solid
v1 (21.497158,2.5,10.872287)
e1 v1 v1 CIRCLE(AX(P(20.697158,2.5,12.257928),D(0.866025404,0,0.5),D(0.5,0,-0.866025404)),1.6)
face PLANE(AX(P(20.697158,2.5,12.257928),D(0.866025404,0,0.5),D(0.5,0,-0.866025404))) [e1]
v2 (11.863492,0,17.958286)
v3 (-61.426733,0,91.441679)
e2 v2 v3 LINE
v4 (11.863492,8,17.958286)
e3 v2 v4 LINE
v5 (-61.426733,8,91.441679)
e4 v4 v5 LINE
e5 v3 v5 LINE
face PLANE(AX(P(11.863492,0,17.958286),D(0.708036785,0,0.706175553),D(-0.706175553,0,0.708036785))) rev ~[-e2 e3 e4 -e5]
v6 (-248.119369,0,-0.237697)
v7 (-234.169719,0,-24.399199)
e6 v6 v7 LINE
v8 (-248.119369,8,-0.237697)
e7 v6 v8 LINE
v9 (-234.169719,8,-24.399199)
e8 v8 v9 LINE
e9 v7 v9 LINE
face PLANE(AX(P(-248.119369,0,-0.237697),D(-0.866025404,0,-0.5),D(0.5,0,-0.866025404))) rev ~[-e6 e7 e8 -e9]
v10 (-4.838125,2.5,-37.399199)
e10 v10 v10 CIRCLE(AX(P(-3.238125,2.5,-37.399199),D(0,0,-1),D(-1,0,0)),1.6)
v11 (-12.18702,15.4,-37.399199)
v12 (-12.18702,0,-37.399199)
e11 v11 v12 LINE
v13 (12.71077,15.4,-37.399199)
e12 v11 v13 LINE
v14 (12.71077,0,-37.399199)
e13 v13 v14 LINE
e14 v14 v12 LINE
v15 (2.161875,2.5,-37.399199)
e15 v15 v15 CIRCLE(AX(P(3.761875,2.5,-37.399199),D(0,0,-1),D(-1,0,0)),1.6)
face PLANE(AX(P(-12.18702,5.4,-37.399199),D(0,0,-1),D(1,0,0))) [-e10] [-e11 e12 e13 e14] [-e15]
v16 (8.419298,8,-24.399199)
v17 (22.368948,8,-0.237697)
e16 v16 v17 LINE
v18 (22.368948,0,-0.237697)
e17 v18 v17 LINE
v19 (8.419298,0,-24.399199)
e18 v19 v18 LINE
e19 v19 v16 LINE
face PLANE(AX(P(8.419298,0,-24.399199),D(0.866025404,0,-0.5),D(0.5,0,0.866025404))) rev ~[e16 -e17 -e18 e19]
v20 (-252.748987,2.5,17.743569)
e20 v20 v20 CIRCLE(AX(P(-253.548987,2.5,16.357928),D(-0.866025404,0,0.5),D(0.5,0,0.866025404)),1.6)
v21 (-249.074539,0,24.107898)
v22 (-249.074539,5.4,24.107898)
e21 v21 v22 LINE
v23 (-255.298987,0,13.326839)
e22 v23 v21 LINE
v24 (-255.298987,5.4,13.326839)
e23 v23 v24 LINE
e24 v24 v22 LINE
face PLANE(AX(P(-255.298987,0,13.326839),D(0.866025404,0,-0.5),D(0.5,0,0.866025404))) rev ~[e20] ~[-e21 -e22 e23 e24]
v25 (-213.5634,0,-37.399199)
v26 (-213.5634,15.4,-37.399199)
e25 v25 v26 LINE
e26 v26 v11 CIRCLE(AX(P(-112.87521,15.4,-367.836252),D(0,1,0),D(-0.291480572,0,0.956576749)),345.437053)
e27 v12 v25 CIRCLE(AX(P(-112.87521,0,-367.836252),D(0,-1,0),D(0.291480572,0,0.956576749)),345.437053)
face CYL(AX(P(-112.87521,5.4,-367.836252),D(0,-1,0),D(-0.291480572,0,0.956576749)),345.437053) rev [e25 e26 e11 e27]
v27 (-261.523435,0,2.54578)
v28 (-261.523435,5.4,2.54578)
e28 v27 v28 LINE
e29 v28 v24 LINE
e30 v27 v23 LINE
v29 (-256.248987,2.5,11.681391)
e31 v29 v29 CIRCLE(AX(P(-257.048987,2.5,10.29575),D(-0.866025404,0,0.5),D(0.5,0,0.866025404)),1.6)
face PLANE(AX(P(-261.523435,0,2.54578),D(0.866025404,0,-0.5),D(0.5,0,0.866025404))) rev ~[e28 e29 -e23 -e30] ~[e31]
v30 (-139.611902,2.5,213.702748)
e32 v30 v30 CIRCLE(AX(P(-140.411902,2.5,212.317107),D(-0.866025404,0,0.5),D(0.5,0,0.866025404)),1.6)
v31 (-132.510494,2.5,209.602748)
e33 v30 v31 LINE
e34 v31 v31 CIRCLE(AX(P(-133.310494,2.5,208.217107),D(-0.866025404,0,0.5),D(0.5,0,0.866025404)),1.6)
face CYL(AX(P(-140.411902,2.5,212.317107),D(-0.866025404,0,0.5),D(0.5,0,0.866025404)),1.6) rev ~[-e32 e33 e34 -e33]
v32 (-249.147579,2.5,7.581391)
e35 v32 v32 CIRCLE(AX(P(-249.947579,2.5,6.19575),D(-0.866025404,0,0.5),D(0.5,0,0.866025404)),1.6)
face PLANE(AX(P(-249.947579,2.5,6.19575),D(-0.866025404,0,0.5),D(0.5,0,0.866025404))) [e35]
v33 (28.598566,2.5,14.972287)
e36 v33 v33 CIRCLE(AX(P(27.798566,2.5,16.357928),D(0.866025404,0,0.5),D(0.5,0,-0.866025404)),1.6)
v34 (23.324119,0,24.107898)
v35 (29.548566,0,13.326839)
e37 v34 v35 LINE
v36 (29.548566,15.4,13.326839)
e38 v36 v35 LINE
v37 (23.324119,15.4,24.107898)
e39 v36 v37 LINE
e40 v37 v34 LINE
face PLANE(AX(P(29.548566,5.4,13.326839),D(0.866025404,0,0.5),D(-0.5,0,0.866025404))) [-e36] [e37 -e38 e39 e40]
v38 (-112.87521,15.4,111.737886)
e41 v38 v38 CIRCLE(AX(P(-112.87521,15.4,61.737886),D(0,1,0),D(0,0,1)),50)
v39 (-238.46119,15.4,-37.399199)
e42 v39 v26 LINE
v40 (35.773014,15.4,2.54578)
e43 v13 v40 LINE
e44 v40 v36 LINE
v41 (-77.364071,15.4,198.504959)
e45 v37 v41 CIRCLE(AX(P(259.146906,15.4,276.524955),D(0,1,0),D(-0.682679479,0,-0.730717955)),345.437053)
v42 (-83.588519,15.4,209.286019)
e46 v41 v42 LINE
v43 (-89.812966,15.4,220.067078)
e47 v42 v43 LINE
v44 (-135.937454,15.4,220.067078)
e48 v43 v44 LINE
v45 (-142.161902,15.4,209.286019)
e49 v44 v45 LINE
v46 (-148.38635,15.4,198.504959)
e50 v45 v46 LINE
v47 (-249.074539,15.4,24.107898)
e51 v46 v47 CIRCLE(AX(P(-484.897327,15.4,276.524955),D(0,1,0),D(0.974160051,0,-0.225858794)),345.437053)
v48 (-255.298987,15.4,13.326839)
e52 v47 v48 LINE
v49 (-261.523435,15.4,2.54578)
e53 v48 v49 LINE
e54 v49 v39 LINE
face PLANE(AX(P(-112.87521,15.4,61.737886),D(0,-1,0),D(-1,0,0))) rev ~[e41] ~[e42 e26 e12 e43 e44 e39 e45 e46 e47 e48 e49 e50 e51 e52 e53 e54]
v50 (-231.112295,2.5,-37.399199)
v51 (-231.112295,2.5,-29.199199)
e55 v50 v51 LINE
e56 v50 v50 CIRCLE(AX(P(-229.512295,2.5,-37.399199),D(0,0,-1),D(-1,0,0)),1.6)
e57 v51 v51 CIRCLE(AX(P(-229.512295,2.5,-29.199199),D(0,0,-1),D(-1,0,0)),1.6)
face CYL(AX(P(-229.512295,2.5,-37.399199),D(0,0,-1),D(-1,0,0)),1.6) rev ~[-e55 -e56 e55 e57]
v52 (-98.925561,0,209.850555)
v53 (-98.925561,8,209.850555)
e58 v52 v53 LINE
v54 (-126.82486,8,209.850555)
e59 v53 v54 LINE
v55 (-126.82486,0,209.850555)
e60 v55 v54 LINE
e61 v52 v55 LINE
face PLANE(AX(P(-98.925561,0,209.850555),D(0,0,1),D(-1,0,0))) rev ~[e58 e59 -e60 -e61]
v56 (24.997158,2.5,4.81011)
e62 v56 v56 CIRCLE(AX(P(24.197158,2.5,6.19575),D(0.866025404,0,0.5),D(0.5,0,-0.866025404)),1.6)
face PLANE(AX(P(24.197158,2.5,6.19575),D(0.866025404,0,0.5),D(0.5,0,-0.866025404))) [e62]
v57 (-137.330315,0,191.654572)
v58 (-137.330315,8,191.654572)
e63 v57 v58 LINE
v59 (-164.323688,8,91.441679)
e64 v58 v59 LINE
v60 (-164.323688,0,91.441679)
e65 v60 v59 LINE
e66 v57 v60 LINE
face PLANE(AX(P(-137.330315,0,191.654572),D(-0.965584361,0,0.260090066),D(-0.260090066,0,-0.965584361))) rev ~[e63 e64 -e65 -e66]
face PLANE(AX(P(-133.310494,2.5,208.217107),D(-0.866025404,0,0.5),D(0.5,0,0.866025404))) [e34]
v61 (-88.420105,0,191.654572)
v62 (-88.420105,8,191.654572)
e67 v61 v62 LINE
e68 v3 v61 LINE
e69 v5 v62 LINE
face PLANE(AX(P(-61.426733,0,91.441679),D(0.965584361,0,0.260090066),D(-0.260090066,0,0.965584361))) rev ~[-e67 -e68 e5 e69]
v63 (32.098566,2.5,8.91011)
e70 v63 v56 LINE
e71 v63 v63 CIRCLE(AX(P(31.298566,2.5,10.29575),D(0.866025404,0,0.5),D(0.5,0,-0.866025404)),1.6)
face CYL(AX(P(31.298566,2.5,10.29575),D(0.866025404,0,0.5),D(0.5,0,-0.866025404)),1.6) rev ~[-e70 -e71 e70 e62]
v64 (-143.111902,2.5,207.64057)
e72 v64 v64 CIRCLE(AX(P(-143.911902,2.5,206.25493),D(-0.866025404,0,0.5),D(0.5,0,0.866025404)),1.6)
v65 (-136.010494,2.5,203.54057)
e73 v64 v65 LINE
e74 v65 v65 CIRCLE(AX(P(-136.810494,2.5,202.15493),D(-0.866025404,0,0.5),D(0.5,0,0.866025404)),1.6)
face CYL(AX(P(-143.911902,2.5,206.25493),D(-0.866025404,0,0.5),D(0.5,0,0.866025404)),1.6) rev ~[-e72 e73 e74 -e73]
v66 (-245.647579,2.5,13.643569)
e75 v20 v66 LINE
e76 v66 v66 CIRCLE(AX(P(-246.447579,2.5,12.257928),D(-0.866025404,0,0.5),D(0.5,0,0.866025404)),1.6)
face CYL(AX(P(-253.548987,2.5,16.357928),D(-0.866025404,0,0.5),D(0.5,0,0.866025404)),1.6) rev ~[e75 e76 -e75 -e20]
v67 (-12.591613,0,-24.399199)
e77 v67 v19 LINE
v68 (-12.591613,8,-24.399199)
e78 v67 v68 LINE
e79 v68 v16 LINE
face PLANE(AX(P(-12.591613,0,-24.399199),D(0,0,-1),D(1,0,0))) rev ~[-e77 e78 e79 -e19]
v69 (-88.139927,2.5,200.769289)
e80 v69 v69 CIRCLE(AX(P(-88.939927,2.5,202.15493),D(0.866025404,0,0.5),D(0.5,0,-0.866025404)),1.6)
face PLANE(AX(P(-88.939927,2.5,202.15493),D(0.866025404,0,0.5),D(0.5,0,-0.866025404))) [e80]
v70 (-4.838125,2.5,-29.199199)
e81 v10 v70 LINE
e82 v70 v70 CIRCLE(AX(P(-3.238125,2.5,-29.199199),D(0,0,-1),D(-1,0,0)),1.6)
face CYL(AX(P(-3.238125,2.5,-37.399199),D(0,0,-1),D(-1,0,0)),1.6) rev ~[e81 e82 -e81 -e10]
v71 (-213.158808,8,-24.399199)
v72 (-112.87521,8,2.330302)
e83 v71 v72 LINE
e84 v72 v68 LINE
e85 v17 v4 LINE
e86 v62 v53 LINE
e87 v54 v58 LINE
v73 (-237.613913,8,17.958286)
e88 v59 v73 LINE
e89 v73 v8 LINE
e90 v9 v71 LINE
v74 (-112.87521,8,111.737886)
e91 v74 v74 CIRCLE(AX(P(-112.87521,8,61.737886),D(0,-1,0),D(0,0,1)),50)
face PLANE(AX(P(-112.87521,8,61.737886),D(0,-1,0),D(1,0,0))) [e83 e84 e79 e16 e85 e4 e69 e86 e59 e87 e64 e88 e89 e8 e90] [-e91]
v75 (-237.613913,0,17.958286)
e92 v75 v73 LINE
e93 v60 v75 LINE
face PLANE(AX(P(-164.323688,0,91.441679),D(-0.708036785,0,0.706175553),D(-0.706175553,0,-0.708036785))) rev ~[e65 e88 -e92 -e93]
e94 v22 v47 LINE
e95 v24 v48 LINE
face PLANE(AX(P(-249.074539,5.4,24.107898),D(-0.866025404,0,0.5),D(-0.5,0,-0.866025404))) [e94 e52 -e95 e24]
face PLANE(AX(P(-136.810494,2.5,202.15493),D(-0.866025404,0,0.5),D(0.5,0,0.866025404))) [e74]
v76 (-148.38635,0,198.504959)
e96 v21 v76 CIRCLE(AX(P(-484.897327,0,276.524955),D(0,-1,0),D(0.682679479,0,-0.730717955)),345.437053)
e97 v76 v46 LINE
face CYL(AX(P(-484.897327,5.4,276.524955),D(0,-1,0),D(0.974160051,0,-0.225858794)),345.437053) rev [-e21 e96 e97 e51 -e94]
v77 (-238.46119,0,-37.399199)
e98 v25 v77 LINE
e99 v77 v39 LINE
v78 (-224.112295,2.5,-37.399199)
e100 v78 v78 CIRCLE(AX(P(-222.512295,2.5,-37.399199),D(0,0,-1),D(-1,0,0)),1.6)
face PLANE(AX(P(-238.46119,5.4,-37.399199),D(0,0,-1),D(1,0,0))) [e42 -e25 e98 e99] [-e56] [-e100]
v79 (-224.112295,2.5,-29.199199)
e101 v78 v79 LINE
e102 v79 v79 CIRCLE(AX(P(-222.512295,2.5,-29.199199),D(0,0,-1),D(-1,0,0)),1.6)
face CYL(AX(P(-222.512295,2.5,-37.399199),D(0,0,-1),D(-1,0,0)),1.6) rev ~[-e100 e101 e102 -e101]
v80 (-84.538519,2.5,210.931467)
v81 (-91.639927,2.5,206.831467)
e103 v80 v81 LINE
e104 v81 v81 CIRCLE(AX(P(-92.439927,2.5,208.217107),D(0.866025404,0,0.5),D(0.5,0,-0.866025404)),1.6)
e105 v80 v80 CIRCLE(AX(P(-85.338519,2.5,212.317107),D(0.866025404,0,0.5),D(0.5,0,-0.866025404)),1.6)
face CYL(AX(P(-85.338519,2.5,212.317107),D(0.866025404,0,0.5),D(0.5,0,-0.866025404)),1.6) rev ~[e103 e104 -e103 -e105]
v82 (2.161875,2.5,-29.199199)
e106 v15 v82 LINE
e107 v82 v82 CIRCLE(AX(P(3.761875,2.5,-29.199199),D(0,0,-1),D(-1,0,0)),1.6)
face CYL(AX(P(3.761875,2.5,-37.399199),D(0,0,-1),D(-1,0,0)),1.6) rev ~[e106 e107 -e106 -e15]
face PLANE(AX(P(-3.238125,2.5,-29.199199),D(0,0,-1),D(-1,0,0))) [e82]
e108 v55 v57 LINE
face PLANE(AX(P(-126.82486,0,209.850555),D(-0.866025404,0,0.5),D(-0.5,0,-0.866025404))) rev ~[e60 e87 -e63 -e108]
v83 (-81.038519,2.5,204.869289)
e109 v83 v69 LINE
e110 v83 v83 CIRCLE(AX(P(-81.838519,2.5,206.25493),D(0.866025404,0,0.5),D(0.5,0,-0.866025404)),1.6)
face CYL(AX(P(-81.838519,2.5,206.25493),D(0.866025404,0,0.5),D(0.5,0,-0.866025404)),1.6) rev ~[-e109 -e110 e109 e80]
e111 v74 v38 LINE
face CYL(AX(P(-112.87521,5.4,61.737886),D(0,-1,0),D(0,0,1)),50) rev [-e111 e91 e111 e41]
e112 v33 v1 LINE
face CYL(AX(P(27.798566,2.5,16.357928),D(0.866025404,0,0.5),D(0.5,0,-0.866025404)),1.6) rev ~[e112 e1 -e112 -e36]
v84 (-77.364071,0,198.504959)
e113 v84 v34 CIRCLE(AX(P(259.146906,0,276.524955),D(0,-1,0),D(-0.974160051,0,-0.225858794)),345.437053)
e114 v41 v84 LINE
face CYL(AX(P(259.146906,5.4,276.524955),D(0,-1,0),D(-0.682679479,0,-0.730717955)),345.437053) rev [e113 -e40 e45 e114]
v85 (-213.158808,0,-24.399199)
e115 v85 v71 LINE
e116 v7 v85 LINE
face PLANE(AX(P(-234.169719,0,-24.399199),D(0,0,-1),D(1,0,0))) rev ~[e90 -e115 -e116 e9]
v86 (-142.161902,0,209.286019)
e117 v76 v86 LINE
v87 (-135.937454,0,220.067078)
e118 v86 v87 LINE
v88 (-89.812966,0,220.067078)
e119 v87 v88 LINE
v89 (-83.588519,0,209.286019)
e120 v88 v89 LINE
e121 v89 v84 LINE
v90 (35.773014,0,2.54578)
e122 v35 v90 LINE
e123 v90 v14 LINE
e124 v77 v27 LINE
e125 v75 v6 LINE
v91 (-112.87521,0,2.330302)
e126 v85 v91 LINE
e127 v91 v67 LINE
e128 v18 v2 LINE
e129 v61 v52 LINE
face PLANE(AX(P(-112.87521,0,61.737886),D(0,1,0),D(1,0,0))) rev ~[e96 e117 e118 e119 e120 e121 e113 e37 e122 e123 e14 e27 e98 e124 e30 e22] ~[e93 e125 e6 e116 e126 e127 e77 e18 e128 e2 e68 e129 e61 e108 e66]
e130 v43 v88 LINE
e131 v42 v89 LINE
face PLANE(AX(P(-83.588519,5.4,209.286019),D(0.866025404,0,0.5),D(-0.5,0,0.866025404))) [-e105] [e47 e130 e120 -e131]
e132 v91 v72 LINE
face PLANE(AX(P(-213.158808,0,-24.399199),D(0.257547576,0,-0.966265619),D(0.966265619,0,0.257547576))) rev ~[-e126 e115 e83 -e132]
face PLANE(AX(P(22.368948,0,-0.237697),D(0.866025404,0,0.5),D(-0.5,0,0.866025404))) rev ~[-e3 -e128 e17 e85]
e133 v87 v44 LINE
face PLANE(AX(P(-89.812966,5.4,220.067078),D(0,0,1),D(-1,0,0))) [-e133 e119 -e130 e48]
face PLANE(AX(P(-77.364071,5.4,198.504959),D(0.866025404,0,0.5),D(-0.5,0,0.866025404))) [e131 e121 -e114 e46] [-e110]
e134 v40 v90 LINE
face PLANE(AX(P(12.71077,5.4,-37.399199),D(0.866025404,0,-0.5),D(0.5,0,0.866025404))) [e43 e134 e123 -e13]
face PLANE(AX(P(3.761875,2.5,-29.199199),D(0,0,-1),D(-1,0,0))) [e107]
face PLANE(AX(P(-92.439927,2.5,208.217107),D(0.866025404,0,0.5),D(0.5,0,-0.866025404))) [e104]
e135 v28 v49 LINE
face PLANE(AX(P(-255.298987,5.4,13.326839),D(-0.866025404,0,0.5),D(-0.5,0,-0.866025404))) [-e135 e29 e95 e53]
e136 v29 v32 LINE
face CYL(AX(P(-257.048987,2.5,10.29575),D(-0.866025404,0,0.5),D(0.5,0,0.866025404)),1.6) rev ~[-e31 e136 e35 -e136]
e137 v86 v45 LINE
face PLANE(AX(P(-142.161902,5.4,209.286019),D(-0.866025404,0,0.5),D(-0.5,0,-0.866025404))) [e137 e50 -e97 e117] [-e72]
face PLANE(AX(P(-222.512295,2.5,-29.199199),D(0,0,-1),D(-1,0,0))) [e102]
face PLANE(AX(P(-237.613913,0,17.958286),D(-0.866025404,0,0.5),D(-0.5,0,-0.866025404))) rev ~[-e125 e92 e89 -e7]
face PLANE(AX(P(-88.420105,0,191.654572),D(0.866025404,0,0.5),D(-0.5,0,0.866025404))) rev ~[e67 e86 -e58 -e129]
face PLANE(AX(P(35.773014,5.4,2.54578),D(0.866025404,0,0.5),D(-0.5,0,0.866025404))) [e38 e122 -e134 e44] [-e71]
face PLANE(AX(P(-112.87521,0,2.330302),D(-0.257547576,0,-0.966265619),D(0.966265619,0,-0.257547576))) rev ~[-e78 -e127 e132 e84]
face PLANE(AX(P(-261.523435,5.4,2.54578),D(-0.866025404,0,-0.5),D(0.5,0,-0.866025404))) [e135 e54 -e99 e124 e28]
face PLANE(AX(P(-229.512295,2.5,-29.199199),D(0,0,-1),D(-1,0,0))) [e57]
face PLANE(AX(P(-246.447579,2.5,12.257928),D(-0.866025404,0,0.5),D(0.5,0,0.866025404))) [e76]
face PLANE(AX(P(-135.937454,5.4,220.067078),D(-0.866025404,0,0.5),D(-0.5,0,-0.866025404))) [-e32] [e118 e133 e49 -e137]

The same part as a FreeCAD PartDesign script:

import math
import FreeCAD as App
import Part
import Sketcher
Q = App.Units.Quantity

doc = App.newDocument("Part")
body = doc.addObject("PartDesign::Body", "Body")

sketch1 = doc.addObject("Sketcher::SketchObject", "Sketch")
body.addObject(sketch1)
sketch1.AttachmentSupport = (doc.XZ_Plane, [""])
sketch1.MapMode = "FlatFace"
sketch1.addGeometry([
    Part.LineSegment(App.Vector(-213.5634, -37.399199, 0), App.Vector(-238.46119, -37.399199, 0)),
    Part.LineSegment(App.Vector(-238.46119, -37.399199, 0), App.Vector(-261.523435, 2.54578, 0)),
    Part.LineSegment(App.Vector(-261.523435, 2.54578, 0), App.Vector(-255.298987, 13.326839, 0)),
    Part.LineSegment(App.Vector(-255.298987, 13.326839, 0), App.Vector(-249.074539, 24.107898, 0)),
    Part.ArcOfCircle(Part.Circle(App.Vector(-484.897327, 276.524955, 0), App.Vector(0, 0, 1), 345.437053), math.radians(-46.946617), math.radians(-13.053383)),
    Part.LineSegment(App.Vector(-148.38635, 198.504959, 0), App.Vector(-142.161902, 209.286019, 0)),
    Part.LineSegment(App.Vector(-142.161902, 209.286019, 0), App.Vector(-135.937454, 220.067078, 0)),
    Part.LineSegment(App.Vector(-135.937454, 220.067078, 0), App.Vector(-89.812966, 220.067078, 0)),
    Part.LineSegment(App.Vector(-89.812966, 220.067078, 0), App.Vector(-83.588519, 209.286019, 0)),
    Part.LineSegment(App.Vector(-83.588519, 209.286019, 0), App.Vector(-77.364071, 198.504959, 0)),
    Part.ArcOfCircle(Part.Circle(App.Vector(259.146906, 276.524955, 0), App.Vector(0, 0, 1), 345.437053), math.radians(-166.946617), math.radians(-133.053383)),
    Part.LineSegment(App.Vector(23.324119, 24.107898, 0), App.Vector(29.548566, 13.326839, 0)),
    Part.LineSegment(App.Vector(29.548566, 13.326839, 0), App.Vector(35.773014, 2.54578, 0)),
    Part.LineSegment(App.Vector(35.773014, 2.54578, 0), App.Vector(12.71077, -37.399199, 0)),
    Part.LineSegment(App.Vector(12.71077, -37.399199, 0), App.Vector(-12.18702, -37.399199, 0)),
    Part.ArcOfCircle(Part.Circle(App.Vector(-112.87521, -367.836252, 0), App.Vector(0, 0, 1), 345.437053), math.radians(73.053383), math.radians(106.946617)),
], False)
sketch1.addConstraint([
    Sketcher.Constraint("Coincident", 0, 2, 1, 1),
    Sketcher.Constraint("Coincident", 1, 2, 2, 1),
    Sketcher.Constraint("Coincident", 2, 2, 3, 1),
    Sketcher.Constraint("Coincident", 3, 2, 4, 1),
    Sketcher.Constraint("Coincident", 4, 2, 5, 1),
    Sketcher.Constraint("Coincident", 5, 2, 6, 1),
    Sketcher.Constraint("Coincident", 6, 2, 7, 1),
    Sketcher.Constraint("Coincident", 7, 2, 8, 1),
    Sketcher.Constraint("Coincident", 8, 2, 9, 1),
    Sketcher.Constraint("Coincident", 9, 2, 10, 1),
    Sketcher.Constraint("Coincident", 10, 2, 11, 1),
    Sketcher.Constraint("Coincident", 11, 2, 12, 1),
    Sketcher.Constraint("Coincident", 12, 2, 13, 1),
    Sketcher.Constraint("Coincident", 13, 2, 14, 1),
    Sketcher.Constraint("Coincident", 14, 2, 15, 1),
    Sketcher.Constraint("Coincident", 15, 2, 0, 1),
    Sketcher.Constraint("Horizontal", 0),
    Sketcher.Constraint("Horizontal", 7),
    Sketcher.Constraint("Horizontal", 14),
    Sketcher.Constraint("Equal", 4, 10),
    Sketcher.Constraint("Equal", 10, 15),
    Sketcher.Constraint("Parallel", 2, 3),
    Sketcher.Constraint("Parallel", 3, 5),
    Sketcher.Constraint("Parallel", 5, 6),
    Sketcher.Constraint("Parallel", 1, 8),
    Sketcher.Constraint("Parallel", 8, 9),
    Sketcher.Constraint("Parallel", 9, 11),
    Sketcher.Constraint("Parallel", 11, 12),
    Sketcher.Constraint("Parallel", 6, 13),
    Sketcher.Constraint("Horizontal", 4, 3, 10, 3),
    Sketcher.Constraint("Horizontal", 5, 2, 8, 2),
    Sketcher.Constraint("Horizontal", 4, 2, 9, 2),
    Sketcher.Constraint("Horizontal", 3, 2, 10, 2),
    Sketcher.Constraint("Horizontal", 2, 2, 11, 2),
    Sketcher.Constraint("Horizontal", 1, 2, 12, 2),
    Sketcher.Constraint("Horizontal", 0, 2, 13, 2),
    Sketcher.Constraint("Equal", 0, 14),
    Sketcher.Constraint("Equal", 2, 3),
    Sketcher.Constraint("Equal", 3, 5),
    Sketcher.Constraint("Equal", 5, 6),
    Sketcher.Constraint("Equal", 6, 8),
    Sketcher.Constraint("Angle", 1, Q("120 deg")),
    Sketcher.Constraint("Radius", 4, Q("345.437053 mm")),
    Sketcher.Constraint("DistanceX", 0, 2, 0, 1, Q("24.89779 mm")),
    Sketcher.Constraint("DistanceX", 7, 1, 7, 2, Q("46.124488 mm")),
    Sketcher.Constraint("DistanceY", 0, 2, -1, 1, Q("37.399199 mm")),
    Sketcher.Constraint("DistanceY", -1, 1, 3, 2, Q("24.107898 mm")),
    Sketcher.Constraint("DistanceX", 5, 2, -1, 1, Q("142.161902 mm")),
    Sketcher.Constraint("DistanceY", 1, 2, 6, 2, Q("217.521298 mm")),
    Sketcher.Constraint("Distance", 1, Q("46.124488 mm")),
    Sketcher.Constraint("DistanceY", 15, 3, -1, 1, Q("367.836252 mm")),
])
pad1 = doc.addObject("PartDesign::Pad", "Pad")
body.addObject(pad1)
pad1.Profile = sketch1
pad1.Length = 5.4
pad1.Reversed = True

sketch2 = doc.addObject("Sketcher::SketchObject", "Sketch001")
body.addObject(sketch2)
sketch2.AttachmentSupport = (doc.XZ_Plane, [""])
sketch2.MapMode = "FlatFace"
sketch2.AttachmentOffset = App.Placement(App.Vector(0, 0, -5.4), App.Rotation())
sketch2.addGeometry(Part.Circle(App.Vector(-112.87521, 61.737886, 0), App.Vector(0, 0, 1), 50), False)
sketch2.addConstraint([
    Sketcher.Constraint("Diameter", 0, Q("100 mm")),
    Sketcher.Constraint("DistanceX", 0, 3, -1, 1, Q("112.87521 mm")),
    Sketcher.Constraint("DistanceY", -1, 1, 0, 3, Q("61.737886 mm")),
])
pocket1 = doc.addObject("PartDesign::Pocket", "Pocket")
body.addObject(pocket1)
pocket1.Profile = sketch2
pocket1.Type = "ThroughAll"
pocket1.Reversed = True

sketch3 = doc.addObject("Sketcher::SketchObject", "Sketch002")
body.addObject(sketch3)
sketch3.Placement = App.Placement(App.Vector(-197.244931, 0, 113.879414), App.Rotation(App.Vector(0.5, 0, 0.866025404), App.Vector(0, 1, 0), App.Vector(-0.866025404, 0, 0.5), "ZXY"))
sketch3.addGeometry([
    Part.Circle(App.Vector(106.666058, 2.5, 0), App.Vector(0, 0, 1), 1.6),
    Part.Circle(App.Vector(113.666058, 2.5, 0), App.Vector(0, 0, 1), 1.6),
], False)
sketch3.addConstraint([
    Sketcher.Constraint("Equal", 0, 1),
    Sketcher.Constraint("Horizontal", 0, 3, 1, 3),
    Sketcher.Constraint("Diameter", 0, Q("3.2 mm")),
    Sketcher.Constraint("DistanceX", 0, 3, 1, 3, Q("7 mm")),
    Sketcher.Constraint("DistanceY", -1, 1, 0, 3, Q("2.5 mm")),
    Sketcher.Constraint("DistanceX", -1, 1, 0, 3, Q("106.666058 mm")),
])
pocket2 = doc.addObject("PartDesign::Pocket", "Pocket001")
body.addObject(pocket2)
pocket2.Profile = sketch3
pocket2.Length = 8.2

sketch4 = doc.addObject("Sketcher::SketchObject", "Sketch003")
body.addObject(sketch4)
sketch4.Placement = App.Placement(App.Vector(-197.244931, 0, 113.879414), App.Rotation(App.Vector(0.5, 0, 0.866025404), App.Vector(0, 1, 0), App.Vector(-0.866025404, 0, 0.5), "ZXY"))
sketch4.addGeometry([
    Part.Circle(App.Vector(-119.608112, 2.5, 0), App.Vector(0, 0, 1), 1.6),
    Part.Circle(App.Vector(-112.608112, 2.5, 0), App.Vector(0, 0, 1), 1.6),
], False)
sketch4.addConstraint([
    Sketcher.Constraint("Equal", 0, 1),
    Sketcher.Constraint("Horizontal", 0, 3, 1, 3),
    Sketcher.Constraint("Diameter", 0, Q("3.2 mm")),
    Sketcher.Constraint("DistanceX", 0, 3, 1, 3, Q("7 mm")),
    Sketcher.Constraint("DistanceY", -1, 1, 0, 3, Q("2.5 mm")),
    Sketcher.Constraint("DistanceX", 0, 3, -1, 1, Q("119.608112 mm")),
])
pocket3 = doc.addObject("PartDesign::Pocket", "Pocket002")
body.addObject(pocket3)
pocket3.Profile = sketch4
pocket3.Length = 8.2

sketch5 = doc.addObject("Sketcher::SketchObject", "Sketch004")
body.addObject(sketch5)
sketch5.AttachmentSupport = (doc.XY_Plane, [""])
sketch5.MapMode = "FlatFace"
sketch5.AttachmentOffset = App.Placement(App.Vector(0, 0, -37.399199), App.Rotation())
sketch5.addGeometry([
    Part.Circle(App.Vector(-222.512295, 2.5, 0), App.Vector(0, 0, 1), 1.6),
    Part.Circle(App.Vector(-229.512295, 2.5, 0), App.Vector(0, 0, 1), 1.6),
], False)
sketch5.addConstraint([
    Sketcher.Constraint("Equal", 0, 1),
    Sketcher.Constraint("Horizontal", 0, 3, 1, 3),
    Sketcher.Constraint("Diameter", 0, Q("3.2 mm")),
    Sketcher.Constraint("DistanceX", 1, 3, 0, 3, Q("7 mm")),
    Sketcher.Constraint("DistanceY", -1, 1, 0, 3, Q("2.5 mm")),
    Sketcher.Constraint("DistanceX", 0, 3, -1, 1, Q("222.512295 mm")),
])
pocket4 = doc.addObject("PartDesign::Pocket", "Pocket003")
body.addObject(pocket4)
pocket4.Profile = sketch5
pocket4.Length = 8.2
pocket4.Reversed = True

sketch6 = doc.addObject("Sketcher::SketchObject", "Sketch005")
body.addObject(sketch6)
sketch6.AttachmentSupport = (doc.XY_Plane, [""])
sketch6.MapMode = "FlatFace"
sketch6.AttachmentOffset = App.Placement(App.Vector(0, 0, -37.399199), App.Rotation())
sketch6.addGeometry([
    Part.Circle(App.Vector(3.761875, 2.5, 0), App.Vector(0, 0, 1), 1.6),
    Part.Circle(App.Vector(-3.238125, 2.5, 0), App.Vector(0, 0, 1), 1.6),
], False)
sketch6.addConstraint([
    Sketcher.Constraint("Equal", 0, 1),
    Sketcher.Constraint("Horizontal", 0, 3, 1, 3),
    Sketcher.Constraint("Diameter", 0, Q("3.2 mm")),
    Sketcher.Constraint("DistanceX", 1, 3, 0, 3, Q("7 mm")),
    Sketcher.Constraint("DistanceY", -1, 1, 0, 3, Q("2.5 mm")),
    Sketcher.Constraint("DistanceX", -1, 1, 0, 3, Q("3.761875 mm")),
])
pocket5 = doc.addObject("PartDesign::Pocket", "Pocket004")
body.addObject(pocket5)
pocket5.Profile = sketch6
pocket5.Length = 8.2
pocket5.Reversed = True

sketch7 = doc.addObject("Sketcher::SketchObject", "Sketch006")
body.addObject(sketch7)
sketch7.Placement = App.Placement(App.Vector(27.932115, 0, 16.126614), App.Rotation(App.Vector(0.5, 0, -0.866025404), App.Vector(0, 1, 0), App.Vector(0.866025404, 0, 0.5), "ZXY"))
sketch7.addGeometry([
    Part.Circle(App.Vector(-0.267098, 2.5, 0), App.Vector(0, 0, 1), 1.6),
    Part.Circle(App.Vector(6.732902, 2.5, 0), App.Vector(0, 0, 1), 1.6),
], False)
sketch7.addConstraint([
    Sketcher.Constraint("Equal", 0, 1),
    Sketcher.Constraint("Horizontal", 0, 3, 1, 3),
    Sketcher.Constraint("Diameter", 0, Q("3.2 mm")),
    Sketcher.Constraint("DistanceX", 0, 3, 1, 3, Q("7 mm")),
    Sketcher.Constraint("DistanceY", -1, 1, 0, 3, Q("2.5 mm")),
    Sketcher.Constraint("DistanceX", 0, 3, -1, 1, Q("0.267098 mm")),
])
pocket6 = doc.addObject("PartDesign::Pocket", "Pocket005")
body.addObject(pocket6)
pocket6.Profile = sketch7
pocket6.Length = 8.2

sketch8 = doc.addObject("Sketcher::SketchObject", "Sketch007")
body.addObject(sketch8)
sketch8.Placement = App.Placement(App.Vector(27.932115, 0, 16.126614), App.Rotation(App.Vector(0.5, 0, -0.866025404), App.Vector(0, 1, 0), App.Vector(0.866025404, 0, 0.5), "ZXY"))
sketch8.addGeometry([
    Part.Circle(App.Vector(-226.541268, 2.5, 0), App.Vector(0, 0, 1), 1.6),
    Part.Circle(App.Vector(-219.541268, 2.5, 0), App.Vector(0, 0, 1), 1.6),
], False)
sketch8.addConstraint([
    Sketcher.Constraint("Equal", 0, 1),
    Sketcher.Constraint("Horizontal", 0, 3, 1, 3),
    Sketcher.Constraint("Diameter", 0, Q("3.2 mm")),
    Sketcher.Constraint("DistanceX", 0, 3, 1, 3, Q("7 mm")),
    Sketcher.Constraint("DistanceY", -1, 1, 0, 3, Q("2.5 mm")),
    Sketcher.Constraint("DistanceX", 0, 3, -1, 1, Q("226.541268 mm")),
])
pocket7 = doc.addObject("PartDesign::Pocket", "Pocket006")
body.addObject(pocket7)
pocket7.Profile = sketch8
pocket7.Length = 8.2

sketch9 = doc.addObject("Sketcher::SketchObject", "Sketch008")
body.addObject(sketch9)
sketch9.AttachmentSupport = (doc.XZ_Plane, [""])
sketch9.MapMode = "FlatFace"
sketch9.AttachmentOffset = App.Placement(App.Vector(0, 0, -5.4), App.Rotation())
sketch9.addGeometry([
    Part.ArcOfCircle(Part.Circle(App.Vector(-112.87521, -367.836252, 0), App.Vector(0, 0, 1), 345.437053), math.radians(73.053383), math.radians(106.946617)),
    Part.LineSegment(App.Vector(-213.5634, -37.399199, 0), App.Vector(-238.46119, -37.399199, 0)),
    Part.LineSegment(App.Vector(-238.46119, -37.399199, 0), App.Vector(-261.523435, 2.54578, 0)),
    Part.LineSegment(App.Vector(-261.523435, 2.54578, 0), App.Vector(-255.298987, 13.326839, 0)),
    Part.LineSegment(App.Vector(-255.298987, 13.326839, 0), App.Vector(-249.074539, 24.107898, 0)),
    Part.ArcOfCircle(Part.Circle(App.Vector(-484.897327, 276.524955, 0), App.Vector(0, 0, 1), 345.437053), math.radians(-46.946617), math.radians(-13.053383)),
    Part.LineSegment(App.Vector(-148.38635, 198.504959, 0), App.Vector(-142.161902, 209.286019, 0)),
    Part.LineSegment(App.Vector(-142.161902, 209.286019, 0), App.Vector(-135.937454, 220.067078, 0)),
    Part.LineSegment(App.Vector(-135.937454, 220.067078, 0), App.Vector(-89.812966, 220.067078, 0)),
    Part.LineSegment(App.Vector(-89.812966, 220.067078, 0), App.Vector(-83.588519, 209.286019, 0)),
    Part.LineSegment(App.Vector(-83.588519, 209.286019, 0), App.Vector(-77.364071, 198.504959, 0)),
    Part.ArcOfCircle(Part.Circle(App.Vector(259.146906, 276.524955, 0), App.Vector(0, 0, 1), 345.437053), math.radians(-166.946617), math.radians(-133.053383)),
    Part.LineSegment(App.Vector(23.324119, 24.107898, 0), App.Vector(29.548566, 13.326839, 0)),
    Part.LineSegment(App.Vector(29.548566, 13.326839, 0), App.Vector(35.773014, 2.54578, 0)),
    Part.LineSegment(App.Vector(35.773014, 2.54578, 0), App.Vector(12.71077, -37.399199, 0)),
    Part.LineSegment(App.Vector(12.71077, -37.399199, 0), App.Vector(-12.18702, -37.399199, 0)),
    Part.Circle(App.Vector(-112.87521, 61.737886, 0), App.Vector(0, 0, 1), 50),
], False)
sketch9.addConstraint([
    Sketcher.Constraint("Coincident", 0, 2, 1, 1),
    Sketcher.Constraint("Coincident", 1, 2, 2, 1),
    Sketcher.Constraint("Coincident", 2, 2, 3, 1),
    Sketcher.Constraint("Coincident", 3, 2, 4, 1),
    Sketcher.Constraint("Coincident", 4, 2, 5, 1),
    Sketcher.Constraint("Coincident", 5, 2, 6, 1),
    Sketcher.Constraint("Coincident", 6, 2, 7, 1),
    Sketcher.Constraint("Coincident", 7, 2, 8, 1),
    Sketcher.Constraint("Coincident", 8, 2, 9, 1),
    Sketcher.Constraint("Coincident", 9, 2, 10, 1),
    Sketcher.Constraint("Coincident", 10, 2, 11, 1),
    Sketcher.Constraint("Coincident", 11, 2, 12, 1),
    Sketcher.Constraint("Coincident", 12, 2, 13, 1),
    Sketcher.Constraint("Coincident", 13, 2, 14, 1),
    Sketcher.Constraint("Coincident", 14, 2, 15, 1),
    Sketcher.Constraint("Coincident", 15, 2, 0, 1),
    Sketcher.Constraint("Horizontal", 1),
    Sketcher.Constraint("Horizontal", 8),
    Sketcher.Constraint("Horizontal", 15),
    Sketcher.Constraint("Equal", 0, 5),
    Sketcher.Constraint("Equal", 5, 11),
    Sketcher.Constraint("Parallel", 3, 4),
    Sketcher.Constraint("Parallel", 4, 6),
    Sketcher.Constraint("Parallel", 6, 7),
    Sketcher.Constraint("Parallel", 2, 9),
    Sketcher.Constraint("Parallel", 9, 10),
    Sketcher.Constraint("Parallel", 10, 12),
    Sketcher.Constraint("Parallel", 12, 13),
    Sketcher.Constraint("Parallel", 7, 14),
    Sketcher.Constraint("Horizontal", 5, 3, 11, 3),
    Sketcher.Constraint("Horizontal", 6, 2, 9, 2),
    Sketcher.Constraint("Horizontal", 5, 2, 10, 2),
    Sketcher.Constraint("Horizontal", 4, 2, 11, 2),
    Sketcher.Constraint("Horizontal", 3, 2, 12, 2),
    Sketcher.Constraint("Horizontal", 2, 2, 13, 2),
    Sketcher.Constraint("Horizontal", 1, 2, 14, 2),
    Sketcher.Constraint("Vertical", 0, 3, 16, 3),
    Sketcher.Constraint("Equal", 1, 15),
    Sketcher.Constraint("Equal", 3, 4),
    Sketcher.Constraint("Equal", 4, 6),
    Sketcher.Constraint("Equal", 6, 7),
    Sketcher.Constraint("Equal", 7, 9),
    Sketcher.Constraint("Diameter", 16, Q("100 mm")),
    Sketcher.Constraint("Angle", 2, Q("120 deg")),
    Sketcher.Constraint("Radius", 0, Q("345.437053 mm")),
    Sketcher.Constraint("DistanceX", 1, 2, 1, 1, Q("24.89779 mm")),
    Sketcher.Constraint("DistanceX", 8, 1, 8, 2, Q("46.124488 mm")),
    Sketcher.Constraint("DistanceY", 0, 2, -1, 1, Q("37.399199 mm")),
    Sketcher.Constraint("DistanceY", -1, 1, 4, 2, Q("24.107898 mm")),
    Sketcher.Constraint("DistanceX", 6, 2, -1, 1, Q("142.161902 mm")),
    Sketcher.Constraint("Distance", 2, Q("46.124488 mm")),
    Sketcher.Constraint("DistanceY", 0, 3, -1, 1, Q("367.836252 mm")),
    Sketcher.Constraint("DistanceY", -1, 1, 6, 2, Q("209.286019 mm")),
    Sketcher.Constraint("DistanceY", 16, 3, 5, 3, Q("214.787069 mm")),
])
pad2 = doc.addObject("PartDesign::Pad", "Pad001")
body.addObject(pad2)
pad2.Profile = sketch9
pad2.Length = 10
pad2.Reversed = True

sketch10 = doc.addObject("Sketcher::SketchObject", "Sketch009")
body.addObject(sketch10)
sketch10.AttachmentSupport = (doc.XZ_Plane, [""])
sketch10.MapMode = "FlatFace"
sketch10.addGeometry([
    Part.LineSegment(App.Vector(-126.82486, 209.850555, 0), App.Vector(-137.330315, 191.654572, 0)),
    Part.LineSegment(App.Vector(-137.330315, 191.654572, 0), App.Vector(-164.323688, 91.441679, 0)),
    Part.LineSegment(App.Vector(-164.323688, 91.441679, 0), App.Vector(-237.613913, 17.958286, 0)),
    Part.LineSegment(App.Vector(-237.613913, 17.958286, 0), App.Vector(-248.119369, -0.237697, 0)),
    Part.LineSegment(App.Vector(-248.119369, -0.237697, 0), App.Vector(-234.169719, -24.399199, 0)),
    Part.LineSegment(App.Vector(-234.169719, -24.399199, 0), App.Vector(-213.158808, -24.399199, 0)),
    Part.LineSegment(App.Vector(-213.158808, -24.399199, 0), App.Vector(-112.87521, 2.330302, 0)),
    Part.LineSegment(App.Vector(-112.87521, 2.330302, 0), App.Vector(-12.591613, -24.399199, 0)),
    Part.LineSegment(App.Vector(-12.591613, -24.399199, 0), App.Vector(8.419298, -24.399199, 0)),
    Part.LineSegment(App.Vector(8.419298, -24.399199, 0), App.Vector(22.368948, -0.237697, 0)),
    Part.LineSegment(App.Vector(22.368948, -0.237697, 0), App.Vector(11.863492, 17.958286, 0)),
    Part.LineSegment(App.Vector(11.863492, 17.958286, 0), App.Vector(-61.426733, 91.441679, 0)),
    Part.LineSegment(App.Vector(-61.426733, 91.441679, 0), App.Vector(-88.420105, 191.654572, 0)),
    Part.LineSegment(App.Vector(-88.420105, 191.654572, 0), App.Vector(-98.925561, 209.850555, 0)),
    Part.LineSegment(App.Vector(-98.925561, 209.850555, 0), App.Vector(-126.82486, 209.850555, 0)),
], False)
sketch10.addConstraint([
    Sketcher.Constraint("Coincident", 0, 2, 1, 1),
    Sketcher.Constraint("Coincident", 1, 2, 2, 1),
    Sketcher.Constraint("Coincident", 2, 2, 3, 1),
    Sketcher.Constraint("Coincident", 3, 2, 4, 1),
    Sketcher.Constraint("Coincident", 4, 2, 5, 1),
    Sketcher.Constraint("Coincident", 5, 2, 6, 1),
    Sketcher.Constraint("Coincident", 6, 2, 7, 1),
    Sketcher.Constraint("Coincident", 7, 2, 8, 1),
    Sketcher.Constraint("Coincident", 8, 2, 9, 1),
    Sketcher.Constraint("Coincident", 9, 2, 10, 1),
    Sketcher.Constraint("Coincident", 10, 2, 11, 1),
    Sketcher.Constraint("Coincident", 11, 2, 12, 1),
    Sketcher.Constraint("Coincident", 12, 2, 13, 1),
    Sketcher.Constraint("Coincident", 13, 2, 14, 1),
    Sketcher.Constraint("Coincident", 14, 2, 0, 1),
    Sketcher.Constraint("Horizontal", 5),
    Sketcher.Constraint("Horizontal", 8),
    Sketcher.Constraint("Horizontal", 14),
    Sketcher.Constraint("Parallel", 0, 3),
    Sketcher.Constraint("Parallel", 3, 9),
    Sketcher.Constraint("Parallel", 4, 10),
    Sketcher.Constraint("Parallel", 10, 13),
    Sketcher.Constraint("Horizontal", 5, 2, 7, 2),
    Sketcher.Constraint("Horizontal", 3, 2, 9, 2),
    Sketcher.Constraint("Horizontal", 2, 2, 10, 2),
    Sketcher.Constraint("Horizontal", 1, 2, 11, 2),
    Sketcher.Constraint("Horizontal", 0, 2, 12, 2),
    Sketcher.Constraint("Equal", 5, 8),
    Sketcher.Constraint("Equal", 1, 2),
    Sketcher.Constraint("Equal", 0, 3),
    Sketcher.Constraint("Equal", 2, 6),
    Sketcher.Constraint("Equal", 6, 7),
    Sketcher.Constraint("Equal", 4, 9),
    Sketcher.Constraint("Equal", 7, 11),
    Sketcher.Constraint("Equal", 11, 12),
    Sketcher.Constraint("Angle", 0, Q("-120 deg")),
    Sketcher.Constraint("DistanceX", 14, 2, 14, 1, Q("27.899299 mm")),
    Sketcher.Constraint("DistanceY", 3, 2, 6, 2, Q("2.567999 mm")),
    Sketcher.Constraint("Distance", 4, Q("27.899299 mm")),
    Sketcher.Constraint("DistanceX", 5, 1, 5, 2, Q("21.010911 mm")),
    Sketcher.Constraint("DistanceY", 4, 2, -1, 1, Q("24.399199 mm")),
    Sketcher.Constraint("DistanceX", -1, 1, 8, 2, Q("8.419298 mm")),
    Sketcher.Constraint("DistanceX", 2, 2, 7, 2, Q("225.0223 mm")),
    Sketcher.Constraint("Distance", 0, Q("21.010911 mm")),
    Sketcher.Constraint("DistanceY", -1, 1, 0, 2, Q("191.654572 mm")),
])
pocket8 = doc.addObject("PartDesign::Pocket", "Pocket007")
body.addObject(pocket8)
pocket8.Profile = sketch10
pocket8.Length = 8

doc.recompute()
